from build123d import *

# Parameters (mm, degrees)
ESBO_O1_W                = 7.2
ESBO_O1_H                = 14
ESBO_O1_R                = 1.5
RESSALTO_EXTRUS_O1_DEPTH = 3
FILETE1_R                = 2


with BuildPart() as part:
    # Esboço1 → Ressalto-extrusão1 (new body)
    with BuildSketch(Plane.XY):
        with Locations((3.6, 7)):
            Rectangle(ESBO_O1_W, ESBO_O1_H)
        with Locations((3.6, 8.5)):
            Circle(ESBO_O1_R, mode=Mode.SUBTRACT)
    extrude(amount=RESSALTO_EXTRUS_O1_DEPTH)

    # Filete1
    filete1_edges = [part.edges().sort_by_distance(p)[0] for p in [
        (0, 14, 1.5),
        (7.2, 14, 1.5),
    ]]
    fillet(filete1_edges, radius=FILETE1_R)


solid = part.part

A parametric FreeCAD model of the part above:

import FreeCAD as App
import Part
import Sketcher

V = App.Vector


def edges_at(feature, points):
    """Names of the edges that pass closest to the given points."""
    edges = feature.Shape.Edges
    near = lambda p: min(range(len(edges)), key=lambda i: edges[i].distToShape(Part.Vertex(*p))[0])
    return sorted({f"Edge{near(p) + 1}" for p in points})


def add_polygon(sketch, points):
    """Adds a closed chain of lines whose ends are joined by coincident constraints."""
    first, n = sketch.GeometryCount, len(points)
    for a, b in zip(points, points[1:] + points[:1]):
        sketch.addGeometry(Part.LineSegment(App.Vector(*a, 0), App.Vector(*b, 0)), False)
    for i in range(n):
        sketch.addConstraint(Sketcher.Constraint("Coincident", first + i, 2, first + (i + 1) % n, 1))

doc = App.newDocument("Part")
body = doc.addObject("PartDesign::Body", "Body")

# Sketch on XY plane
sketch1 = doc.addObject("Sketcher::SketchObject", "Sketch")
body.addObject(sketch1)
sketch1.AttachmentSupport = (doc.XY_Plane, [""])
sketch1.MapMode = "FlatFace"
add_polygon(sketch1, [(0, 14), (0, 0), (7.2, 0), (7.2, 14)])  # lines 0-3
sketch1.addGeometry(Part.Circle(V(3.6, 8.5, 0), V(0, 0, 1), 1.5), False)  # 4
sketch1.addConstraint([
    Sketcher.Constraint("Vertical", 0),
    Sketcher.Constraint("Horizontal", 1),
    Sketcher.Constraint("Vertical", 2),
    Sketcher.Constraint("Horizontal", 3),
    Sketcher.Constraint("Coincident", 0, 2, -1, 1),
    Sketcher.Constraint("Diameter", 4, 3.0),
    Sketcher.Constraint("DistanceY", 0, 2, 0, 1, 14.0),
    Sketcher.Constraint("DistanceX", 1, 1, 1, 2, 7.2),
    Sketcher.Constraint("DistanceX", -1, 1, 4, 3, 3.6),
    Sketcher.Constraint("DistanceY", -1, 1, 4, 3, 8.5),
])
pad1 = doc.addObject("PartDesign::Pad", "Pad")
body.addObject(pad1)
pad1.Profile = sketch1
pad1.Length = 3
doc.recompute()

fillet = doc.addObject("PartDesign::Fillet", "Fillet")
body.addObject(fillet)
fillet.Base = (pad1, edges_at(pad1, [(0, 14, 1.5), (7.2, 14, 1.5)]))
fillet.Radius = 2

doc.recompute()
